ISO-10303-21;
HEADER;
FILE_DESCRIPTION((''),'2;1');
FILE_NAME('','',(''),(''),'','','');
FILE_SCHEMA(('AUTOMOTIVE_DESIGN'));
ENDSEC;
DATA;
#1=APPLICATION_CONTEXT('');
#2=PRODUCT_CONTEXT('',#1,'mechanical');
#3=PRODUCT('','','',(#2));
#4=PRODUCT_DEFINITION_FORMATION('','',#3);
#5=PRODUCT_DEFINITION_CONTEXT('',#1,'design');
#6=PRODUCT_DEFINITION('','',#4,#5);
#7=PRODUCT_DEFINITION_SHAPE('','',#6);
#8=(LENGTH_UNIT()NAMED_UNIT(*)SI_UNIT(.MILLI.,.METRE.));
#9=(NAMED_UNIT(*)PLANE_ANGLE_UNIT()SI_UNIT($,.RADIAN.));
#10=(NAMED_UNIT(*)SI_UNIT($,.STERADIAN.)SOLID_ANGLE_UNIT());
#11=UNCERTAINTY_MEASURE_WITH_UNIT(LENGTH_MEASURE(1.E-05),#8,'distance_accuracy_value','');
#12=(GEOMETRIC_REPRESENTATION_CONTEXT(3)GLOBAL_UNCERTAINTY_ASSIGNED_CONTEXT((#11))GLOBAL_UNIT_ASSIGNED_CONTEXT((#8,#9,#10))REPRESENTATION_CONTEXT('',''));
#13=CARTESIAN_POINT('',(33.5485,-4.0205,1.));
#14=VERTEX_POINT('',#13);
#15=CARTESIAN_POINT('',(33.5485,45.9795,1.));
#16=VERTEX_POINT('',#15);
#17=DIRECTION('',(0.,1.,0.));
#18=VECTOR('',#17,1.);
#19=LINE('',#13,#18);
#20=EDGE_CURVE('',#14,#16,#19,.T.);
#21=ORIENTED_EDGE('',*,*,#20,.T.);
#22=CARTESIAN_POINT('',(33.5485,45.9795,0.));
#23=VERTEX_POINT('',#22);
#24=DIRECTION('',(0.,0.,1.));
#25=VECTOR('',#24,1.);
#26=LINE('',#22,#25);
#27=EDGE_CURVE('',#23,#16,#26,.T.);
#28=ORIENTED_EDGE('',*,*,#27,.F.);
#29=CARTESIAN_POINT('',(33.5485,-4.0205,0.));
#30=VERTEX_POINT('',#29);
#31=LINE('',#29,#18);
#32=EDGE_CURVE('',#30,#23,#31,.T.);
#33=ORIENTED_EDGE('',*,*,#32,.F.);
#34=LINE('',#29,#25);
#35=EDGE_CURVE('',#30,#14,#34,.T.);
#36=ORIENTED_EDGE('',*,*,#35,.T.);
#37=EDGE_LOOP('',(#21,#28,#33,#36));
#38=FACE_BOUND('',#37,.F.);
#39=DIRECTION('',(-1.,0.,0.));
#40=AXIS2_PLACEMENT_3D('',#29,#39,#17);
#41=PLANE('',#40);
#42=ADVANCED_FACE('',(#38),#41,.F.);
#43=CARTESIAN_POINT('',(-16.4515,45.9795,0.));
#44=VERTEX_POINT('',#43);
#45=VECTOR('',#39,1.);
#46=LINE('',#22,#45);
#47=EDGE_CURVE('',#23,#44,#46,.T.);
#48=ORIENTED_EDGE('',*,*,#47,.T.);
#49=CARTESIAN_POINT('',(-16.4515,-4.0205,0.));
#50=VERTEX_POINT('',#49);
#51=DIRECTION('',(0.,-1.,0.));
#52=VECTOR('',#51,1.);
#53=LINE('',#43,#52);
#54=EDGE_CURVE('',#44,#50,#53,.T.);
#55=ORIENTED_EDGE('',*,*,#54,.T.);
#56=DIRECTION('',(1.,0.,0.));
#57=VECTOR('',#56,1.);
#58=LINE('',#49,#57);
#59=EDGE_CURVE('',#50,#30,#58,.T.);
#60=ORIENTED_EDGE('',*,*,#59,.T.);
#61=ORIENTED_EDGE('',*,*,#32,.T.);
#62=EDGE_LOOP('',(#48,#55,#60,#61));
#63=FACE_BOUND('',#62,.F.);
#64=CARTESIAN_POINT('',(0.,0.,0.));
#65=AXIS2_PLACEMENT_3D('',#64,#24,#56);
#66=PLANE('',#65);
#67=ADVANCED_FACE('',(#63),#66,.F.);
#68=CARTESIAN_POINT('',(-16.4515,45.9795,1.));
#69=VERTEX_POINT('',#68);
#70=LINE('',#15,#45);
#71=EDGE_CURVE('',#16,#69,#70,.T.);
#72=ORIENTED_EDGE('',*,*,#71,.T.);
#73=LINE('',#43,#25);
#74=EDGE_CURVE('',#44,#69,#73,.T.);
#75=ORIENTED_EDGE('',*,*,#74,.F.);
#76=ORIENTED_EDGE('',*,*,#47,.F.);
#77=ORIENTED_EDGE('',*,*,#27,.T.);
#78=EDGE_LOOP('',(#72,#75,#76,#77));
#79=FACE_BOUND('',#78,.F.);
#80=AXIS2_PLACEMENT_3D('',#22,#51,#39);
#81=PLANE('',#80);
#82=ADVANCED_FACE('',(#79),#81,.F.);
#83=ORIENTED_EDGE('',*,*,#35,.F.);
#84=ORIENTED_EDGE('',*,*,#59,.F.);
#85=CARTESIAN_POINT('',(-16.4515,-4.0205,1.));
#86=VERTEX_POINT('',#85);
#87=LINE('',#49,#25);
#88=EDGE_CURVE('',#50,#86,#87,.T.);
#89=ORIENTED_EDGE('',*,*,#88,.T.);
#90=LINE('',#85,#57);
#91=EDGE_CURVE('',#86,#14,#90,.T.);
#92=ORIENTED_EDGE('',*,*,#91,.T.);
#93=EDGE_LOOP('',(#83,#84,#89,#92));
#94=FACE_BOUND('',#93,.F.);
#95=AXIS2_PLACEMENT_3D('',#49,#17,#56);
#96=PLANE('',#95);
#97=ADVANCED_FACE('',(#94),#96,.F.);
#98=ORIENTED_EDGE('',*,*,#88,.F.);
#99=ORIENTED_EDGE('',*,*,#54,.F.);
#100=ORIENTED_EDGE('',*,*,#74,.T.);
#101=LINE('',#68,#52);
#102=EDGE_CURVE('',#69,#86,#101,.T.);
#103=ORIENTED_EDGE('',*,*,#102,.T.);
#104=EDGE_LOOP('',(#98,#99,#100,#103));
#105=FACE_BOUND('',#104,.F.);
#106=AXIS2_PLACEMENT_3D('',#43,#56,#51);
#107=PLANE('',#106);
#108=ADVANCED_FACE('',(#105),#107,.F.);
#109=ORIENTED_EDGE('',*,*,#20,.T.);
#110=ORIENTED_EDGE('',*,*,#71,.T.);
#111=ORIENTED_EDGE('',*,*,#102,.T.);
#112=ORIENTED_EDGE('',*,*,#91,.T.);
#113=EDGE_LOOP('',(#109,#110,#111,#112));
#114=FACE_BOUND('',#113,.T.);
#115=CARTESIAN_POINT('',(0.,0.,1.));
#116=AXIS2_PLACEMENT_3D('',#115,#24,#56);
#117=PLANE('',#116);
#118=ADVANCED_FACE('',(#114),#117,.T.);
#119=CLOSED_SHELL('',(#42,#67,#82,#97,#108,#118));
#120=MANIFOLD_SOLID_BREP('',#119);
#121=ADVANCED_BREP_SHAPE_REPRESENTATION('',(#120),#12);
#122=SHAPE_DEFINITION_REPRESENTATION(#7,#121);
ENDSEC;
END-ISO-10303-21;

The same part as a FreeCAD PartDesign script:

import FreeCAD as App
import Part
import Sketcher

V = App.Vector


def add_polygon(sketch, points):
    """Adds a closed chain of lines whose ends are joined by coincident constraints."""
    first, n = sketch.GeometryCount, len(points)
    for a, b in zip(points, points[1:] + points[:1]):
        sketch.addGeometry(Part.LineSegment(App.Vector(*a, 0), App.Vector(*b, 0)), False)
    for i in range(n):
        sketch.addConstraint(Sketcher.Constraint("Coincident", first + i, 2, first + (i + 1) % n, 1))

doc = App.newDocument("Part")
body = doc.addObject("PartDesign::Body", "Body")

# Sketch on XY plane
sketch1 = body.newObject("Sketcher::SketchObject", "Sketch")
sketch1.AttachmentSupport = (doc.getObject("XY_Plane"), [""])
sketch1.MapMode = "FlatFace"
add_polygon(sketch1, [(-16, 46), (-16, -4), (34, -4), (34, 46)])  # lines 0-3
sketch1.addConstraint([
    Sketcher.Constraint("Vertical", 0),
    Sketcher.Constraint("Horizontal", 1),
    Sketcher.Constraint("Vertical", 2),
    Sketcher.Constraint("Horizontal", 3),
    Sketcher.Constraint("Equal", 3, 0),
    Sketcher.Constraint("DistanceX", 1, 1, 1, 2, 50.0),
    Sketcher.Constraint("DistanceX", 0, 2, -1, 1, 16.4515),
    Sketcher.Constraint("DistanceY", 0, 2, -1, 1, 4.0205),
])
pad1 = body.newObject("PartDesign::Pad", "Pad")
pad1.Profile = sketch1
pad1.Length = 1

doc.recompute()
